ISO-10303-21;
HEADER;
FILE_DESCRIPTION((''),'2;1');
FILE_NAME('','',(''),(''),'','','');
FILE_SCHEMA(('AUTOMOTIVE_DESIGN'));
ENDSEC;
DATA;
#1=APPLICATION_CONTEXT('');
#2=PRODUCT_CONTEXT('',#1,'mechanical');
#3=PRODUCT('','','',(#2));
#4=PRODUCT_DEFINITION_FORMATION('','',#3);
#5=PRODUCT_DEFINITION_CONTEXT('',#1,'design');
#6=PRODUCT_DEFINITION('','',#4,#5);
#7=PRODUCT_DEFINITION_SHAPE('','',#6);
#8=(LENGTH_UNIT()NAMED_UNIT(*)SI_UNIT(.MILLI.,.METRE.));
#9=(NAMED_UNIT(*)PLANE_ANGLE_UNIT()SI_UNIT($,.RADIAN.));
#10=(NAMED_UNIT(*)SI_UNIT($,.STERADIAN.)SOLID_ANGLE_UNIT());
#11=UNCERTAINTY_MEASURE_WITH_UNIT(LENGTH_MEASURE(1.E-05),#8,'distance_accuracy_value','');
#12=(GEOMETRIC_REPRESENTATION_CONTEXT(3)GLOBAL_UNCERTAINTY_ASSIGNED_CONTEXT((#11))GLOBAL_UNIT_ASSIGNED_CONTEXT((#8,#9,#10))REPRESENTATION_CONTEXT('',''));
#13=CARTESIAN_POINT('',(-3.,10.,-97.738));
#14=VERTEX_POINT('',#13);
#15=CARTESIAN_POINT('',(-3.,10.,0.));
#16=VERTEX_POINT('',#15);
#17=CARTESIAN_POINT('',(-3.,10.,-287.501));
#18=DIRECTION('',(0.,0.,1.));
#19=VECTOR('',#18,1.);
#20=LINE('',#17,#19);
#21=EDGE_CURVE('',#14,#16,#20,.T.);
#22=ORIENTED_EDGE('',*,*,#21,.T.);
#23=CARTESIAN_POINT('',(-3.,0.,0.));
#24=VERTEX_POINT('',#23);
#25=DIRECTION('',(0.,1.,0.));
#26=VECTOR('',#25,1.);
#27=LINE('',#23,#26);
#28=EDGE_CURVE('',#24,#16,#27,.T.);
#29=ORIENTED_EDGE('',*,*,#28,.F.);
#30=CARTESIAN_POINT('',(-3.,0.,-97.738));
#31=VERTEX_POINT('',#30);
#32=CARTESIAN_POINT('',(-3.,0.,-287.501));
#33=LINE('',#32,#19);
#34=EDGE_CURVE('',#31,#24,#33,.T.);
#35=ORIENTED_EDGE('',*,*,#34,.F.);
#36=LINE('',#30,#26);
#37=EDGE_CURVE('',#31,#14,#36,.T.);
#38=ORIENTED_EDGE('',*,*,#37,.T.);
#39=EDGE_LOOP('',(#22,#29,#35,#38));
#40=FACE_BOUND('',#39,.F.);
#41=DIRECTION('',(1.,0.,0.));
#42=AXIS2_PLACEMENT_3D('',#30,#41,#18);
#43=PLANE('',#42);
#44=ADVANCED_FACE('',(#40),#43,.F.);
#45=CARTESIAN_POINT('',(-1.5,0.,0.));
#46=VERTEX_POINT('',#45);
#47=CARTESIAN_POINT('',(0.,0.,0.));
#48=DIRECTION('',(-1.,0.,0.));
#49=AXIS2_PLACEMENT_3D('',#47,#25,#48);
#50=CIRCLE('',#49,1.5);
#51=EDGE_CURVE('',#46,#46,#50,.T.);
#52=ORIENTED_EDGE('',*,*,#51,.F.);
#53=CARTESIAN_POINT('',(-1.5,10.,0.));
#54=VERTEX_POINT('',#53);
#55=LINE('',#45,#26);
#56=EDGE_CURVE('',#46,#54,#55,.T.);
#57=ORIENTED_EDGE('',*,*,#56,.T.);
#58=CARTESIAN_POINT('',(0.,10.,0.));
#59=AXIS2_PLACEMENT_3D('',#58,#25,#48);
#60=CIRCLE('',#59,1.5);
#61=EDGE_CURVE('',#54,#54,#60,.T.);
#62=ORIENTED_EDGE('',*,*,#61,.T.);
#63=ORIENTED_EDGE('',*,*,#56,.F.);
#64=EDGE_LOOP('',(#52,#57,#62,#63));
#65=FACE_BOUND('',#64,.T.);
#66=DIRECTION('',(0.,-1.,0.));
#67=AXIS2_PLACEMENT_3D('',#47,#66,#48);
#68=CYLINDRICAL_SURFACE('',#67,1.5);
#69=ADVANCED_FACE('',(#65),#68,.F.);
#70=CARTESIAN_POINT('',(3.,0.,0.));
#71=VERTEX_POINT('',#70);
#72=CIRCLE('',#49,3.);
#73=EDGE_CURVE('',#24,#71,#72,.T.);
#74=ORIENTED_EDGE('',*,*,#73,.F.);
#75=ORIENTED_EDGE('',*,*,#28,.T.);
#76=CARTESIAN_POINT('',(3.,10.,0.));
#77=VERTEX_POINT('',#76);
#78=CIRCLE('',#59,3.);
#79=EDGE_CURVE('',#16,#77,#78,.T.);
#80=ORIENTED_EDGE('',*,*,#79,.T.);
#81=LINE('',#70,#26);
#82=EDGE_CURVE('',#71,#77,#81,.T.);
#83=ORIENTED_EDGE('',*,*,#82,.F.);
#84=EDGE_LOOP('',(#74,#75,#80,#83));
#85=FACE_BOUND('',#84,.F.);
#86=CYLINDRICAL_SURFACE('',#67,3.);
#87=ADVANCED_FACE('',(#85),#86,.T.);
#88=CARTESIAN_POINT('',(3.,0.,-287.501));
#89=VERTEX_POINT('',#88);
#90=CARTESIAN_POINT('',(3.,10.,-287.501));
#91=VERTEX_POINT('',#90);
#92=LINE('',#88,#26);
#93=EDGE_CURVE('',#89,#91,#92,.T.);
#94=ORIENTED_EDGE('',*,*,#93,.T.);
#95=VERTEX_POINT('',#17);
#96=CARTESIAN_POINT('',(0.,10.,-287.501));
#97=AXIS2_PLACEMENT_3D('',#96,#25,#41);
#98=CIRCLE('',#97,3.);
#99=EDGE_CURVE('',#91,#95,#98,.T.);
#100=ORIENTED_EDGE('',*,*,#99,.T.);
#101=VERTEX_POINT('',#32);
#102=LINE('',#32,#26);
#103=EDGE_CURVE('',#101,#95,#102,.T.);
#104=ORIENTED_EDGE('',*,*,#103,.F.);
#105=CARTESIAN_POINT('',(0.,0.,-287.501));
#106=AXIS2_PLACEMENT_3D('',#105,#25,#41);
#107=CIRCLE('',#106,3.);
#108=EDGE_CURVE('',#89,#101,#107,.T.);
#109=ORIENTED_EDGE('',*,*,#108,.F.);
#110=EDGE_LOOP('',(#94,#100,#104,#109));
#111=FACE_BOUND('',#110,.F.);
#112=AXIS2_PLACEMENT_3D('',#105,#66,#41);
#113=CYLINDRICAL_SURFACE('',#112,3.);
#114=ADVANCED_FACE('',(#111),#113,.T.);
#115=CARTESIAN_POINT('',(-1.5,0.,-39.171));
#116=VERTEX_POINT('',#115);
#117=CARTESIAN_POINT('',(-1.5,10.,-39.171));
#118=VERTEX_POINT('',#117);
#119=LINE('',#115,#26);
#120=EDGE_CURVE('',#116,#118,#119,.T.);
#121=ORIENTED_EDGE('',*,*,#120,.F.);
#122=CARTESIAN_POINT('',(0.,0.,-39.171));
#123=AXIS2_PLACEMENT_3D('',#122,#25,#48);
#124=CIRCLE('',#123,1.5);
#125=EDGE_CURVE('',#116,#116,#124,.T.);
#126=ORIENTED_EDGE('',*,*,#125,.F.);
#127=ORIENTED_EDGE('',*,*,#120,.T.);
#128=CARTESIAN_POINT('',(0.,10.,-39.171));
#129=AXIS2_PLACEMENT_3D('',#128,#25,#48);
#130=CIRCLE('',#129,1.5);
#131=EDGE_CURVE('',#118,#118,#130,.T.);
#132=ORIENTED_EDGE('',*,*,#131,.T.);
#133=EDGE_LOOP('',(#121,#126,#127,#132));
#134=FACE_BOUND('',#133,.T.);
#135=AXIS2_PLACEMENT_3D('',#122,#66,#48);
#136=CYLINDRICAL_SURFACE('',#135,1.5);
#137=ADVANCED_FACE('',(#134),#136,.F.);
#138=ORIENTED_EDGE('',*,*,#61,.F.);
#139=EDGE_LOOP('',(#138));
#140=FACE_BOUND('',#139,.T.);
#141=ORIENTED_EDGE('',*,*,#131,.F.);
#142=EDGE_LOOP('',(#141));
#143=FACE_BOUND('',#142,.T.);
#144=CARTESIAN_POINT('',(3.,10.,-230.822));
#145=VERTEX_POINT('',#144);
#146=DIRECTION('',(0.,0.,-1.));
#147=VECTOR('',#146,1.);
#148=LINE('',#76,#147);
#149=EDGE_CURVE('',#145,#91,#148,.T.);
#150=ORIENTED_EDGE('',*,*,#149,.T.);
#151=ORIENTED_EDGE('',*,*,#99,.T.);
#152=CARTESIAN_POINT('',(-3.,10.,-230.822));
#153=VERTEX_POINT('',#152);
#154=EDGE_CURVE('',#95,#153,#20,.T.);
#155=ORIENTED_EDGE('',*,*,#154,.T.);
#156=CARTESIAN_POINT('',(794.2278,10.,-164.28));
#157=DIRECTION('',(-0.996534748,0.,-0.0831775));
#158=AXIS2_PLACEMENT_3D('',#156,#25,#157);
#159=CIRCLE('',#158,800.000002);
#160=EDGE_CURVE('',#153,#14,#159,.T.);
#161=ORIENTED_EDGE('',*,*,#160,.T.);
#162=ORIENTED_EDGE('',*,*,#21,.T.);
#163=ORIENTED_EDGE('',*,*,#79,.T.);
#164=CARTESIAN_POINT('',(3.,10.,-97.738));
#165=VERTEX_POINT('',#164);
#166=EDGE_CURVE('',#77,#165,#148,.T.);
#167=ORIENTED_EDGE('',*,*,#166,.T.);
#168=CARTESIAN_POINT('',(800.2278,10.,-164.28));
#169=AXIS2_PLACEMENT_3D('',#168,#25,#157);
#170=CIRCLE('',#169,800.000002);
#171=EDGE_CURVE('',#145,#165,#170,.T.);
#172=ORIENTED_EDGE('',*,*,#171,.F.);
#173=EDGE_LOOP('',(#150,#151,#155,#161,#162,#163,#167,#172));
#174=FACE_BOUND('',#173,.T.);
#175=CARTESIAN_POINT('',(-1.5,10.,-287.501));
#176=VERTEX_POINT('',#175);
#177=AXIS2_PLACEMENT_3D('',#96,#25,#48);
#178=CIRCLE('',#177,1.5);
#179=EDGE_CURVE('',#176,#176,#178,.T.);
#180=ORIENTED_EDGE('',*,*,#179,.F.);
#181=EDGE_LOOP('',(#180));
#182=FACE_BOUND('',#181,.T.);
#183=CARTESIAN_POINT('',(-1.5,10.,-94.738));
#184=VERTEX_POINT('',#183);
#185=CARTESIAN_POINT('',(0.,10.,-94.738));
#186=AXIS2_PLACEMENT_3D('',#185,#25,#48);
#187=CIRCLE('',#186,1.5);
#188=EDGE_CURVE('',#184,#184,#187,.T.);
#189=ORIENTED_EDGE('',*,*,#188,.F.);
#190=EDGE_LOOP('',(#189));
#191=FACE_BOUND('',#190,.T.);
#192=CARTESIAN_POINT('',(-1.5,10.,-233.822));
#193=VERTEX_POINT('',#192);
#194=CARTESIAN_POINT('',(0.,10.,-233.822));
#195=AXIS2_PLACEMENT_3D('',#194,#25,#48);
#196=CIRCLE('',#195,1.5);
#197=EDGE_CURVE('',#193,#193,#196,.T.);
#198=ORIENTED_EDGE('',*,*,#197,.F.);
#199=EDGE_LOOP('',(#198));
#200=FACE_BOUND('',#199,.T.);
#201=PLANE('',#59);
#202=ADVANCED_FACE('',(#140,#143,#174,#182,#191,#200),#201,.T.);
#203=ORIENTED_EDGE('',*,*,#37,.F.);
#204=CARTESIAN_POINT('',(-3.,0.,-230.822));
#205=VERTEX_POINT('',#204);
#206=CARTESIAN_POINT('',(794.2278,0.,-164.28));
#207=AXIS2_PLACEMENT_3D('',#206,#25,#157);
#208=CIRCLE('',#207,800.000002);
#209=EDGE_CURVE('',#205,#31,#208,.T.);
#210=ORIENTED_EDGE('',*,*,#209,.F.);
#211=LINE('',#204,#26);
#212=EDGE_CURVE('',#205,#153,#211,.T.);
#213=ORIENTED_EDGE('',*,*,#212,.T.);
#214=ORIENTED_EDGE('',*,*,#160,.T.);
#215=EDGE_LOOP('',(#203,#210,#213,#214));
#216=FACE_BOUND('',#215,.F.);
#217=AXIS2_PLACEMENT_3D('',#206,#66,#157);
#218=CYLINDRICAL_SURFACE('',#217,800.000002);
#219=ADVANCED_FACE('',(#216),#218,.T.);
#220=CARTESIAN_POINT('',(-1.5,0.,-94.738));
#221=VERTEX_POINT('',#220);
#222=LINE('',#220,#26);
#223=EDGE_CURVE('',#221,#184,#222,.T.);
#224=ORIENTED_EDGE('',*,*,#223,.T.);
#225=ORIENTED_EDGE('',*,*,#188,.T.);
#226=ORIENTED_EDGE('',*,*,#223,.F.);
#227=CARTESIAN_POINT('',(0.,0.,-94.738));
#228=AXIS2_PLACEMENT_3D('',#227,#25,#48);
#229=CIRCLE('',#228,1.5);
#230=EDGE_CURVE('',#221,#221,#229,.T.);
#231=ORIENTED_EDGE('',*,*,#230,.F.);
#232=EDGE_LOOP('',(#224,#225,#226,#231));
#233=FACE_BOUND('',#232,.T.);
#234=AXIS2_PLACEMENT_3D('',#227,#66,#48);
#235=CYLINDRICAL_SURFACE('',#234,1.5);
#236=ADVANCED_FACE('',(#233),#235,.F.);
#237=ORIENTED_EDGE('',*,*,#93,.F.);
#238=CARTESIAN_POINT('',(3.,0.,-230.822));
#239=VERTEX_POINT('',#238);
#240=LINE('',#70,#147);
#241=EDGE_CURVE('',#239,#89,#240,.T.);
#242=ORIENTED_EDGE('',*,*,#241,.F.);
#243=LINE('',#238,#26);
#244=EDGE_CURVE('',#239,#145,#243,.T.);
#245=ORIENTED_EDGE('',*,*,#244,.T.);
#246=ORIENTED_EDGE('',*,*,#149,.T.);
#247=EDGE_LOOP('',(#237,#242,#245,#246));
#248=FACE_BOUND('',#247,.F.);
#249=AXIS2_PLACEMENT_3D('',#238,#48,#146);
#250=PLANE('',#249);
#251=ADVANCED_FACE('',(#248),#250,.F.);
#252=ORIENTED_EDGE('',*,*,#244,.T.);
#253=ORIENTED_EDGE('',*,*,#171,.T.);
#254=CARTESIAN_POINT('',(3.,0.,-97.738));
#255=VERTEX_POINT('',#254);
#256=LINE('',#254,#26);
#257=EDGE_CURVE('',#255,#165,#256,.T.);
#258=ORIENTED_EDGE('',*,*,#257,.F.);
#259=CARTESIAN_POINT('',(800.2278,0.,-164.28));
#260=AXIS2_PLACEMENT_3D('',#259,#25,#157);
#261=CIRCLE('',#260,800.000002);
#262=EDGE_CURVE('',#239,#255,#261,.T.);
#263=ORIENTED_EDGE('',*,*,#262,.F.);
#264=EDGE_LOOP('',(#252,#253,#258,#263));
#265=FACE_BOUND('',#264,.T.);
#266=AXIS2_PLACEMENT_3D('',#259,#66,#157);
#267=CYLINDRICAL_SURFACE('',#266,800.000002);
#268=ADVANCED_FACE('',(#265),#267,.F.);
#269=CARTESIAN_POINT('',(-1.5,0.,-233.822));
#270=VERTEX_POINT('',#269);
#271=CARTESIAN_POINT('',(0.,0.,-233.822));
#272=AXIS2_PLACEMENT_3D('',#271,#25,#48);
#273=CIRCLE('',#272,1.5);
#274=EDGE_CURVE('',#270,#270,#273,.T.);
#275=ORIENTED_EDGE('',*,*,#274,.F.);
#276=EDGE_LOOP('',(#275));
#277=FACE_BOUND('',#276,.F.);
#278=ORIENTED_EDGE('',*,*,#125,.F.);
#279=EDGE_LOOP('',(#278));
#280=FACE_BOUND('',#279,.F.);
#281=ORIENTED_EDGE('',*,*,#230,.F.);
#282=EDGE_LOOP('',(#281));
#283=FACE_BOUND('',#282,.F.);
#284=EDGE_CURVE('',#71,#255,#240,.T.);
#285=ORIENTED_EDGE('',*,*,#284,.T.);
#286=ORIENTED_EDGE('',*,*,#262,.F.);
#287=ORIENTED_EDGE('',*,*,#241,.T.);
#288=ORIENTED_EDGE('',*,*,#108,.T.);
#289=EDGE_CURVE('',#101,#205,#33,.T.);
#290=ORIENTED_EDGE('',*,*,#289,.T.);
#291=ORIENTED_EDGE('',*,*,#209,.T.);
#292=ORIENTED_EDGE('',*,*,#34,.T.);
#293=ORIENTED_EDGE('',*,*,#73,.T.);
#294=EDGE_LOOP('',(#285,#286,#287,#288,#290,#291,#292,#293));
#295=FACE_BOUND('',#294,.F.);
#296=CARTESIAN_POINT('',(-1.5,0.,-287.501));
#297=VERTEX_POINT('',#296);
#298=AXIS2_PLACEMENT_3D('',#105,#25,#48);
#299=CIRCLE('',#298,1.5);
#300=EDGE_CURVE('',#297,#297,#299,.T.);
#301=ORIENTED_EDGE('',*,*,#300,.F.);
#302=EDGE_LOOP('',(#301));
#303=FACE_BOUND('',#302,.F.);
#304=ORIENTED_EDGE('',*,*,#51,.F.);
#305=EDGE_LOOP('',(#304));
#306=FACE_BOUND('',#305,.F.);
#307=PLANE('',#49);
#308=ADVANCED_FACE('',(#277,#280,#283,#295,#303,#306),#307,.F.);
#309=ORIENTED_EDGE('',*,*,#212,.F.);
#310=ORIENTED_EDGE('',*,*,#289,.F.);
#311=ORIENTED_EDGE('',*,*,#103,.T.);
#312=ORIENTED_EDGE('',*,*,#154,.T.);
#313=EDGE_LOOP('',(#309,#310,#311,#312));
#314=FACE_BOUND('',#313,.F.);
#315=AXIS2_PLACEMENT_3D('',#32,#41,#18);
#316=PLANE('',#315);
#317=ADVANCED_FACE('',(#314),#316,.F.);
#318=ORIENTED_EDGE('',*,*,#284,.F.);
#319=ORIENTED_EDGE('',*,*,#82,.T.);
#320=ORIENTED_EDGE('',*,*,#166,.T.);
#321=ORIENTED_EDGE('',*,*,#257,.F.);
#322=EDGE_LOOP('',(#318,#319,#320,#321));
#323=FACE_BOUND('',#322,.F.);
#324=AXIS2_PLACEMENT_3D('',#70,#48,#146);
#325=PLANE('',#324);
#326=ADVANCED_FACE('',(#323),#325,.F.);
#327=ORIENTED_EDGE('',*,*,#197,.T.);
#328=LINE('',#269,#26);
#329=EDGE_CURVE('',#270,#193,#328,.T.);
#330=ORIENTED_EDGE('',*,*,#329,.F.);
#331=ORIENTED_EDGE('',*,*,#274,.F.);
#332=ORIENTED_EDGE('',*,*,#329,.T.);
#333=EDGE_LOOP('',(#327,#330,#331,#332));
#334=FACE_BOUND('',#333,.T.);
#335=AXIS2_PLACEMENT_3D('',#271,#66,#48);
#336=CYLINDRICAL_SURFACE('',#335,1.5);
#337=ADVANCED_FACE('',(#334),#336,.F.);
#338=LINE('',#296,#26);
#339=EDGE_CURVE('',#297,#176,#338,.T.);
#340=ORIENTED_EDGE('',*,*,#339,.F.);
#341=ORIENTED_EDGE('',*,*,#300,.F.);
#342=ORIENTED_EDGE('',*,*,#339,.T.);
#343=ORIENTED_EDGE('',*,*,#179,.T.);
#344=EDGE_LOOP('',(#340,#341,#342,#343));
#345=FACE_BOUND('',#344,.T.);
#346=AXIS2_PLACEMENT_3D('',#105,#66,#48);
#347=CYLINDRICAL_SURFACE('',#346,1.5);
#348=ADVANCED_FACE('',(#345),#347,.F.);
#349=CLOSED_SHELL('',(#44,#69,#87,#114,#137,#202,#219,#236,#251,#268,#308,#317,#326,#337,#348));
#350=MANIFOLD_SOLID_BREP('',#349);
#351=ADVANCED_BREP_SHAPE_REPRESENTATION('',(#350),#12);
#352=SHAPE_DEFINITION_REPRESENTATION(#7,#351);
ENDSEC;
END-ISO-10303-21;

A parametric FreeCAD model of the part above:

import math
import FreeCAD as App
import Part
import Sketcher
Q = App.Units.Quantity

doc = App.newDocument("Part")
body = doc.addObject("PartDesign::Body", "Body")

sketch1 = body.newObject("Sketcher::SketchObject", "Sketch")
sketch1.AttachmentSupport = (doc.getObject("XZ_Plane"), [""])
sketch1.MapMode = "FlatFace"
sketch1.addGeometry([
    Part.ArcOfCircle(Part.Circle(App.Vector(0, 0, 0), App.Vector(0, 0, 1), 3), math.radians(0), math.radians(180)),
    Part.LineSegment(App.Vector(3, 0, 0), App.Vector(3, -97.7, 0)),
    Part.ArcOfCircle(Part.Circle(App.Vector(800.2, -164.3, 0), App.Vector(0, 0, 1), 800), math.radians(175.23), math.radians(184.77)),
    Part.LineSegment(App.Vector(3, -230.8, 0), App.Vector(3, -287.5, 0)),
    Part.ArcOfCircle(Part.Circle(App.Vector(0, -287.5, 0), App.Vector(0, 0, 1), 3), math.radians(180), math.radians(360)),
    Part.LineSegment(App.Vector(-3, -287.5, 0), App.Vector(-3, -230.8, 0)),
    Part.ArcOfCircle(Part.Circle(App.Vector(794.2, -164.3, 0), App.Vector(0, 0, 1), 800), math.radians(175.23), math.radians(184.77)),
    Part.LineSegment(App.Vector(-3, -97.7, 0), App.Vector(-3, 0, 0)),
    Part.Circle(App.Vector(0, -287.5, 0), App.Vector(0, 0, 1), 1.5),
    Part.Circle(App.Vector(0, -233.8, 0), App.Vector(0, 0, 1), 1.5),
    Part.Circle(App.Vector(0, -94.7, 0), App.Vector(0, 0, 1), 1.5),
    Part.Circle(App.Vector(0, -39.2, 0), App.Vector(0, 0, 1), 1.5),
    Part.Circle(App.Vector(0, 0, 0), App.Vector(0, 0, 1), 1.5),
], False)
sketch1.addConstraint([
    Sketcher.Constraint("Tangent", 0, 1, 1, 1),
    Sketcher.Constraint("Coincident", 1, 2, 2, 1),
    Sketcher.Constraint("Coincident", 2, 2, 3, 1),
    Sketcher.Constraint("Tangent", 3, 2, 4, 2),
    Sketcher.Constraint("Tangent", 4, 1, 5, 1),
    Sketcher.Constraint("Coincident", 5, 2, 6, 2),
    Sketcher.Constraint("Coincident", 6, 1, 7, 1),
    Sketcher.Constraint("Tangent", 7, 2, 0, 2),
    Sketcher.Constraint("Vertical", 1),
    Sketcher.Constraint("Vertical", 3),
    Sketcher.Constraint("Vertical", 5),
    Sketcher.Constraint("Vertical", 7),
    Sketcher.Constraint("Coincident", 0, 3, -1, 1),
    Sketcher.Constraint("Coincident", 12, 3, -1, 1),
    Sketcher.Constraint("Coincident", 8, 3, 4, 3),
    Sketcher.Constraint("Equal", 0, 4),
    Sketcher.Constraint("Equal", 2, 6),
    Sketcher.Constraint("Equal", 8, 9),
    Sketcher.Constraint("Equal", 9, 10),
    Sketcher.Constraint("Equal", 10, 11),
    Sketcher.Constraint("Equal", 11, 12),
    Sketcher.Constraint("PointOnObject", 4, 3, -2),
    Sketcher.Constraint("PointOnObject", 9, 3, -2),
    Sketcher.Constraint("PointOnObject", 10, 3, -2),
    Sketcher.Constraint("PointOnObject", 11, 3, -2),
    Sketcher.Constraint("Horizontal", 2, 3, 6, 3),
    Sketcher.Constraint("Equal", 3, 5),
    Sketcher.Constraint("Diameter", 8, Q("3 mm")),
    Sketcher.Constraint("Radius", 0, Q("3 mm")),
    Sketcher.Constraint("Radius", 2, Q("800 mm")),
    Sketcher.Constraint("DistanceY", 1, 2, 10, 3, Q("3 mm")),
    Sketcher.Constraint("DistanceY", 9, 3, 5, 2, Q("3 mm")),
    Sketcher.Constraint("DistanceY", 4, 3, -1, 1, Q("287.501 mm")),
    Sketcher.Constraint("DistanceY", 9, 3, -1, 1, Q("233.822 mm")),
    Sketcher.Constraint("DistanceY", 10, 3, -1, 1, Q("94.738 mm")),
    Sketcher.Constraint("DistanceY", 11, 3, -1, 1, Q("39.171 mm")),
])
pad1 = body.newObject("PartDesign::Pad", "Pad")
pad1.Profile = sketch1
pad1.Length = 10
pad1.Reversed = True

doc.recompute()
